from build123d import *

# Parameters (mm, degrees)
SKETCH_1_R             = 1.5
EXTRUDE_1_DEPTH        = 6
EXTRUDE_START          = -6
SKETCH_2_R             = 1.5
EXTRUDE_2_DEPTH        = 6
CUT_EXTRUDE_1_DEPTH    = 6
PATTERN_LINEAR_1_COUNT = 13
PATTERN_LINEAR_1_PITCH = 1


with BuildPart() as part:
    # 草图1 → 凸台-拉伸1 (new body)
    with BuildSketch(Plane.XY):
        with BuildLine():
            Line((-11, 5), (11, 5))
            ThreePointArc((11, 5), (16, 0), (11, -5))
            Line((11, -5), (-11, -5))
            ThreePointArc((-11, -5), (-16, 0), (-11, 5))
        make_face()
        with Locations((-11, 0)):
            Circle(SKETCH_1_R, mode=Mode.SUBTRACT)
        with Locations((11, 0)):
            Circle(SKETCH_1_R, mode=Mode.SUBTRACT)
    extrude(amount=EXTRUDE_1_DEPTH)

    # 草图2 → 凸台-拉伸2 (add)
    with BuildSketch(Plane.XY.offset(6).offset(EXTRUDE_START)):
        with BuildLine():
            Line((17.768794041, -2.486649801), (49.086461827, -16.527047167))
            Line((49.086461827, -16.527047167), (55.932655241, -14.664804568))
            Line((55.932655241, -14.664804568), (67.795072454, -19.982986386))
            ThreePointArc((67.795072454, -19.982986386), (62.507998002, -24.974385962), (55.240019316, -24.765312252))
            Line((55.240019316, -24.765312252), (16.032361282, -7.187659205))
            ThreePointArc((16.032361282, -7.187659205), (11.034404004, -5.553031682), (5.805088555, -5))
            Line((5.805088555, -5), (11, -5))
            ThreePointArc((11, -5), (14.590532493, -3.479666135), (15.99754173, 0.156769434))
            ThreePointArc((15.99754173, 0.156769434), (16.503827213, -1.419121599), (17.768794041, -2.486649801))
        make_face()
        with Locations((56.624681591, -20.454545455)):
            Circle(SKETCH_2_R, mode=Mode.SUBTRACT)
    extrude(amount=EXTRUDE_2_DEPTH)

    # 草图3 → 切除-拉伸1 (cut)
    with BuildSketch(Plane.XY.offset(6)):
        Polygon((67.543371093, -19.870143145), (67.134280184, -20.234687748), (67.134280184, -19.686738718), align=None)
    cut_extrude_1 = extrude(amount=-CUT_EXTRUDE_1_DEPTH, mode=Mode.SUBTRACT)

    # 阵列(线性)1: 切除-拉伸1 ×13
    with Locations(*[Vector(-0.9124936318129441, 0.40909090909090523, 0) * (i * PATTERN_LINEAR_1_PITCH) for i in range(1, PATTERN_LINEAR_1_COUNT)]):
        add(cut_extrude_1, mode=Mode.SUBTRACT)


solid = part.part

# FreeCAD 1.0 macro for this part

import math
import FreeCAD as App
import Part
import Sketcher
Q = App.Units.Quantity


def add_polygon(sketch, points):
    """Adds a closed chain of lines whose ends are joined by coincident constraints."""
    first, n = sketch.GeometryCount, len(points)
    for a, b in zip(points, points[1:] + points[:1]):
        sketch.addGeometry(Part.LineSegment(App.Vector(*a, 0), App.Vector(*b, 0)), False)
    for i in range(n):
        sketch.addConstraint(Sketcher.Constraint("Coincident", first + i, 2, first + (i + 1) % n, 1))

doc = App.newDocument("Part")
body = doc.addObject("PartDesign::Body", "Body")

# Sketch on XY plane
sketch1 = body.newObject("Sketcher::SketchObject", "Sketch")
sketch1.AttachmentSupport = (doc.getObject("XY_Plane"), [""])
sketch1.MapMode = "FlatFace"
sketch1.addGeometry([
    Part.LineSegment(App.Vector(11, 5, 0), App.Vector(-11, 5, 0)),  # 0
    Part.ArcOfCircle(Part.Circle(App.Vector(-11, 0, 0), App.Vector(0, 0, 1), 5), math.radians(90), math.radians(270)),  # 1
    Part.LineSegment(App.Vector(-11, -5, 0), App.Vector(11, -5, 0)),  # 2
    Part.ArcOfCircle(Part.Circle(App.Vector(11, 0, 0), App.Vector(0, 0, 1), 5), math.radians(-90), math.radians(90)),  # 3
    Part.Circle(App.Vector(11, 0, 0), App.Vector(0, 0, 1), 1.5),  # 4
    Part.Circle(App.Vector(-11, 0, 0), App.Vector(0, 0, 1), 1.5),  # 5
], False)
sketch1.addConstraint([
    Sketcher.Constraint("Tangent", 0, 2, 1, 1),
    Sketcher.Constraint("Tangent", 1, 2, 2, 1),
    Sketcher.Constraint("Tangent", 2, 2, 3, 1),
    Sketcher.Constraint("Tangent", 3, 2, 0, 1),
    Sketcher.Constraint("Horizontal", 0),
    Sketcher.Constraint("Horizontal", 2),
    Sketcher.Constraint("Coincident", 4, 3, 3, 3),
    Sketcher.Constraint("Coincident", 5, 3, 1, 3),
    Sketcher.Constraint("Equal", 4, 5),
    Sketcher.Constraint("Symmetric", 1, 3, 3, 3, -1, 1),
    Sketcher.Constraint("Diameter", 4, Q("3 mm")),
    Sketcher.Constraint("Radius", 1, Q("5 mm")),
    Sketcher.Constraint("DistanceX", 0, 2, 0, 1, Q("22 mm")),
])
pad1 = body.newObject("PartDesign::Pad", "Pad")
pad1.Profile = sketch1
pad1.Length = 6

# Sketch on XY plane
sketch2 = body.newObject("Sketcher::SketchObject", "Sketch001")
sketch2.AttachmentSupport = (doc.getObject("XY_Plane"), [""])
sketch2.MapMode = "FlatFace"
sketch2.addGeometry([
    Part.LineSegment(App.Vector(49.086462, -16.527047, 0), App.Vector(17.768794, -2.48665, 0)),  # 0
    Part.ArcOfCircle(Part.Circle(App.Vector(18.996067, 0.250831, 0), App.Vector(0, 0, 1), 3), math.radians(-178.20326), math.radians(-114.14774)),  # 1
    Part.ArcOfCircle(Part.Circle(App.Vector(11, 0, 0), App.Vector(0, 0, 1), 5), math.radians(-90), math.radians(1.79674)),  # 2
    Part.LineSegment(App.Vector(11, -5, 0), App.Vector(5.805089, -5, 0)),  # 3
    Part.ArcOfCircle(Part.Circle(App.Vector(5.805089, -30, 0), App.Vector(0, 0, 1), 25), math.radians(65.85226), math.radians(90)),  # 4
    Part.LineSegment(App.Vector(16.032361, -7.187659, 0), App.Vector(55.240019, -24.765312, 0)),  # 5
    Part.ArcOfCircle(Part.Circle(App.Vector(59.126383, -16.096623, 0), App.Vector(0, 0, 1), 9.5), math.radians(-114.14774), math.radians(-24.14774)),  # 6
    Part.LineSegment(App.Vector(67.795072, -19.982986, 0), App.Vector(55.932655, -14.664805, 0)),  # 7
    Part.LineSegment(App.Vector(55.932655, -14.664805, 0), App.Vector(49.086462, -16.527047, 0)),  # 8
    Part.Circle(App.Vector(56.624682, -20.454545, 0), App.Vector(0, 0, 1), 1.5),  # 9
], False)
sketch2.addConstraint([
    Sketcher.Constraint("Tangent", 0, 2, 1, 2),
    Sketcher.Constraint("Tangent", 1, 1, 2, 2),
    Sketcher.Constraint("Tangent", 2, 1, 3, 1),
    Sketcher.Constraint("Tangent", 3, 2, 4, 2),
    Sketcher.Constraint("Tangent", 4, 1, 5, 1),
    Sketcher.Constraint("Tangent", 5, 2, 6, 1),
    Sketcher.Constraint("Coincident", 6, 2, 7, 1),
    Sketcher.Constraint("Coincident", 7, 2, 8, 1),
    Sketcher.Constraint("Coincident", 8, 2, 0, 1),
    Sketcher.Constraint("Horizontal", 3),
    Sketcher.Constraint("PointOnObject", 2, 3, -1),
    Sketcher.Constraint("Parallel", 0, 5),
    Sketcher.Constraint("Parallel", 5, 7),
    Sketcher.Constraint("Diameter", 9, Q("3 mm")),
    Sketcher.Constraint("Radius", 1, Q("3 mm")),
    Sketcher.Constraint("Radius", 2, Q("5 mm")),
    Sketcher.Constraint("Radius", 4, Q("25 mm")),
    Sketcher.Constraint("Radius", 6, Q("9.5 mm")),
    Sketcher.Constraint("Distance", 7, Q("13 mm")),
    Sketcher.Constraint("DistanceX", -1, 1, 2, 3, Q("11 mm")),
    Sketcher.Constraint("DistanceX", 3, 2, 3, 1, Q("5.194911 mm")),
    Sketcher.Constraint("DistanceX", 9, 3, 6, 3, Q("2.501701 mm")),
    Sketcher.Constraint("DistanceY", 9, 3, 8, 2, Q("3.927498 mm")),
    Sketcher.Constraint("Distance", 0, Q("34.320971 mm")),
    Sketcher.Constraint("Distance", 8, Q("7.09495 mm")),
    Sketcher.Constraint("DistanceY", -1, 1, 1, 3, Q("0.250831 mm")),
    Sketcher.Constraint("DistanceX", -1, 1, 9, 3, Q("56.624682 mm")),
    Sketcher.Constraint("DistanceY", 0, 2, -1, 1, Q("2.48665 mm")),
])
pad2 = body.newObject("PartDesign::Pad", "Pad001")
pad2.Profile = sketch2
pad2.Length = 6

# Sketch on XY plane
sketch3 = body.newObject("Sketcher::SketchObject", "Sketch002")
sketch3.AttachmentSupport = (doc.getObject("XY_Plane"), [""])
sketch3.MapMode = "FlatFace"
sketch3.AttachmentOffset = App.Placement(App.Vector(0, 0, 6), App.Rotation())
add_polygon(sketch3, [(67.13428, -20.234688), (67.543371, -19.870143), (67.13428, -19.686739)])  # lines 0-2
sketch3.addConstraint([
    Sketcher.Constraint("Vertical", 2),
    Sketcher.Constraint("DistanceY", 2, 2, 2, 1, Q("0.547949 mm")),
    Sketcher.Constraint("Distance", 0, Q("0.547949 mm")),
    Sketcher.Constraint("Distance", 1, Q("0.448322 mm")),
    Sketcher.Constraint("DistanceX", -1, 1, 0, 2, Q("67.543371 mm")),
    Sketcher.Constraint("DistanceY", 1, 2, -1, 1, Q("19.686739 mm")),
])
pocket1 = body.newObject("PartDesign::Pocket", "Pocket")
pocket1.Profile = sketch3
pocket1.Length = 6
doc.recompute()

datumline = body.newObject("PartDesign::Line", "DatumLine")
datumline.Placement = App.Placement(App.Vector(0, 0, 0), App.Rotation(App.Vector(0, 0, 1), App.Vector(-0.912493632, 0.409090909, 0)))
linearpattern = body.newObject("PartDesign::LinearPattern", "LinearPattern")
linearpattern.Originals = [pocket1]
linearpattern.Direction = (datumline, [""])
linearpattern.Mode = "offset"
linearpattern.Offset = 1
linearpattern.Occurrences = 13
body.Tip = linearpattern

doc.recompute()
